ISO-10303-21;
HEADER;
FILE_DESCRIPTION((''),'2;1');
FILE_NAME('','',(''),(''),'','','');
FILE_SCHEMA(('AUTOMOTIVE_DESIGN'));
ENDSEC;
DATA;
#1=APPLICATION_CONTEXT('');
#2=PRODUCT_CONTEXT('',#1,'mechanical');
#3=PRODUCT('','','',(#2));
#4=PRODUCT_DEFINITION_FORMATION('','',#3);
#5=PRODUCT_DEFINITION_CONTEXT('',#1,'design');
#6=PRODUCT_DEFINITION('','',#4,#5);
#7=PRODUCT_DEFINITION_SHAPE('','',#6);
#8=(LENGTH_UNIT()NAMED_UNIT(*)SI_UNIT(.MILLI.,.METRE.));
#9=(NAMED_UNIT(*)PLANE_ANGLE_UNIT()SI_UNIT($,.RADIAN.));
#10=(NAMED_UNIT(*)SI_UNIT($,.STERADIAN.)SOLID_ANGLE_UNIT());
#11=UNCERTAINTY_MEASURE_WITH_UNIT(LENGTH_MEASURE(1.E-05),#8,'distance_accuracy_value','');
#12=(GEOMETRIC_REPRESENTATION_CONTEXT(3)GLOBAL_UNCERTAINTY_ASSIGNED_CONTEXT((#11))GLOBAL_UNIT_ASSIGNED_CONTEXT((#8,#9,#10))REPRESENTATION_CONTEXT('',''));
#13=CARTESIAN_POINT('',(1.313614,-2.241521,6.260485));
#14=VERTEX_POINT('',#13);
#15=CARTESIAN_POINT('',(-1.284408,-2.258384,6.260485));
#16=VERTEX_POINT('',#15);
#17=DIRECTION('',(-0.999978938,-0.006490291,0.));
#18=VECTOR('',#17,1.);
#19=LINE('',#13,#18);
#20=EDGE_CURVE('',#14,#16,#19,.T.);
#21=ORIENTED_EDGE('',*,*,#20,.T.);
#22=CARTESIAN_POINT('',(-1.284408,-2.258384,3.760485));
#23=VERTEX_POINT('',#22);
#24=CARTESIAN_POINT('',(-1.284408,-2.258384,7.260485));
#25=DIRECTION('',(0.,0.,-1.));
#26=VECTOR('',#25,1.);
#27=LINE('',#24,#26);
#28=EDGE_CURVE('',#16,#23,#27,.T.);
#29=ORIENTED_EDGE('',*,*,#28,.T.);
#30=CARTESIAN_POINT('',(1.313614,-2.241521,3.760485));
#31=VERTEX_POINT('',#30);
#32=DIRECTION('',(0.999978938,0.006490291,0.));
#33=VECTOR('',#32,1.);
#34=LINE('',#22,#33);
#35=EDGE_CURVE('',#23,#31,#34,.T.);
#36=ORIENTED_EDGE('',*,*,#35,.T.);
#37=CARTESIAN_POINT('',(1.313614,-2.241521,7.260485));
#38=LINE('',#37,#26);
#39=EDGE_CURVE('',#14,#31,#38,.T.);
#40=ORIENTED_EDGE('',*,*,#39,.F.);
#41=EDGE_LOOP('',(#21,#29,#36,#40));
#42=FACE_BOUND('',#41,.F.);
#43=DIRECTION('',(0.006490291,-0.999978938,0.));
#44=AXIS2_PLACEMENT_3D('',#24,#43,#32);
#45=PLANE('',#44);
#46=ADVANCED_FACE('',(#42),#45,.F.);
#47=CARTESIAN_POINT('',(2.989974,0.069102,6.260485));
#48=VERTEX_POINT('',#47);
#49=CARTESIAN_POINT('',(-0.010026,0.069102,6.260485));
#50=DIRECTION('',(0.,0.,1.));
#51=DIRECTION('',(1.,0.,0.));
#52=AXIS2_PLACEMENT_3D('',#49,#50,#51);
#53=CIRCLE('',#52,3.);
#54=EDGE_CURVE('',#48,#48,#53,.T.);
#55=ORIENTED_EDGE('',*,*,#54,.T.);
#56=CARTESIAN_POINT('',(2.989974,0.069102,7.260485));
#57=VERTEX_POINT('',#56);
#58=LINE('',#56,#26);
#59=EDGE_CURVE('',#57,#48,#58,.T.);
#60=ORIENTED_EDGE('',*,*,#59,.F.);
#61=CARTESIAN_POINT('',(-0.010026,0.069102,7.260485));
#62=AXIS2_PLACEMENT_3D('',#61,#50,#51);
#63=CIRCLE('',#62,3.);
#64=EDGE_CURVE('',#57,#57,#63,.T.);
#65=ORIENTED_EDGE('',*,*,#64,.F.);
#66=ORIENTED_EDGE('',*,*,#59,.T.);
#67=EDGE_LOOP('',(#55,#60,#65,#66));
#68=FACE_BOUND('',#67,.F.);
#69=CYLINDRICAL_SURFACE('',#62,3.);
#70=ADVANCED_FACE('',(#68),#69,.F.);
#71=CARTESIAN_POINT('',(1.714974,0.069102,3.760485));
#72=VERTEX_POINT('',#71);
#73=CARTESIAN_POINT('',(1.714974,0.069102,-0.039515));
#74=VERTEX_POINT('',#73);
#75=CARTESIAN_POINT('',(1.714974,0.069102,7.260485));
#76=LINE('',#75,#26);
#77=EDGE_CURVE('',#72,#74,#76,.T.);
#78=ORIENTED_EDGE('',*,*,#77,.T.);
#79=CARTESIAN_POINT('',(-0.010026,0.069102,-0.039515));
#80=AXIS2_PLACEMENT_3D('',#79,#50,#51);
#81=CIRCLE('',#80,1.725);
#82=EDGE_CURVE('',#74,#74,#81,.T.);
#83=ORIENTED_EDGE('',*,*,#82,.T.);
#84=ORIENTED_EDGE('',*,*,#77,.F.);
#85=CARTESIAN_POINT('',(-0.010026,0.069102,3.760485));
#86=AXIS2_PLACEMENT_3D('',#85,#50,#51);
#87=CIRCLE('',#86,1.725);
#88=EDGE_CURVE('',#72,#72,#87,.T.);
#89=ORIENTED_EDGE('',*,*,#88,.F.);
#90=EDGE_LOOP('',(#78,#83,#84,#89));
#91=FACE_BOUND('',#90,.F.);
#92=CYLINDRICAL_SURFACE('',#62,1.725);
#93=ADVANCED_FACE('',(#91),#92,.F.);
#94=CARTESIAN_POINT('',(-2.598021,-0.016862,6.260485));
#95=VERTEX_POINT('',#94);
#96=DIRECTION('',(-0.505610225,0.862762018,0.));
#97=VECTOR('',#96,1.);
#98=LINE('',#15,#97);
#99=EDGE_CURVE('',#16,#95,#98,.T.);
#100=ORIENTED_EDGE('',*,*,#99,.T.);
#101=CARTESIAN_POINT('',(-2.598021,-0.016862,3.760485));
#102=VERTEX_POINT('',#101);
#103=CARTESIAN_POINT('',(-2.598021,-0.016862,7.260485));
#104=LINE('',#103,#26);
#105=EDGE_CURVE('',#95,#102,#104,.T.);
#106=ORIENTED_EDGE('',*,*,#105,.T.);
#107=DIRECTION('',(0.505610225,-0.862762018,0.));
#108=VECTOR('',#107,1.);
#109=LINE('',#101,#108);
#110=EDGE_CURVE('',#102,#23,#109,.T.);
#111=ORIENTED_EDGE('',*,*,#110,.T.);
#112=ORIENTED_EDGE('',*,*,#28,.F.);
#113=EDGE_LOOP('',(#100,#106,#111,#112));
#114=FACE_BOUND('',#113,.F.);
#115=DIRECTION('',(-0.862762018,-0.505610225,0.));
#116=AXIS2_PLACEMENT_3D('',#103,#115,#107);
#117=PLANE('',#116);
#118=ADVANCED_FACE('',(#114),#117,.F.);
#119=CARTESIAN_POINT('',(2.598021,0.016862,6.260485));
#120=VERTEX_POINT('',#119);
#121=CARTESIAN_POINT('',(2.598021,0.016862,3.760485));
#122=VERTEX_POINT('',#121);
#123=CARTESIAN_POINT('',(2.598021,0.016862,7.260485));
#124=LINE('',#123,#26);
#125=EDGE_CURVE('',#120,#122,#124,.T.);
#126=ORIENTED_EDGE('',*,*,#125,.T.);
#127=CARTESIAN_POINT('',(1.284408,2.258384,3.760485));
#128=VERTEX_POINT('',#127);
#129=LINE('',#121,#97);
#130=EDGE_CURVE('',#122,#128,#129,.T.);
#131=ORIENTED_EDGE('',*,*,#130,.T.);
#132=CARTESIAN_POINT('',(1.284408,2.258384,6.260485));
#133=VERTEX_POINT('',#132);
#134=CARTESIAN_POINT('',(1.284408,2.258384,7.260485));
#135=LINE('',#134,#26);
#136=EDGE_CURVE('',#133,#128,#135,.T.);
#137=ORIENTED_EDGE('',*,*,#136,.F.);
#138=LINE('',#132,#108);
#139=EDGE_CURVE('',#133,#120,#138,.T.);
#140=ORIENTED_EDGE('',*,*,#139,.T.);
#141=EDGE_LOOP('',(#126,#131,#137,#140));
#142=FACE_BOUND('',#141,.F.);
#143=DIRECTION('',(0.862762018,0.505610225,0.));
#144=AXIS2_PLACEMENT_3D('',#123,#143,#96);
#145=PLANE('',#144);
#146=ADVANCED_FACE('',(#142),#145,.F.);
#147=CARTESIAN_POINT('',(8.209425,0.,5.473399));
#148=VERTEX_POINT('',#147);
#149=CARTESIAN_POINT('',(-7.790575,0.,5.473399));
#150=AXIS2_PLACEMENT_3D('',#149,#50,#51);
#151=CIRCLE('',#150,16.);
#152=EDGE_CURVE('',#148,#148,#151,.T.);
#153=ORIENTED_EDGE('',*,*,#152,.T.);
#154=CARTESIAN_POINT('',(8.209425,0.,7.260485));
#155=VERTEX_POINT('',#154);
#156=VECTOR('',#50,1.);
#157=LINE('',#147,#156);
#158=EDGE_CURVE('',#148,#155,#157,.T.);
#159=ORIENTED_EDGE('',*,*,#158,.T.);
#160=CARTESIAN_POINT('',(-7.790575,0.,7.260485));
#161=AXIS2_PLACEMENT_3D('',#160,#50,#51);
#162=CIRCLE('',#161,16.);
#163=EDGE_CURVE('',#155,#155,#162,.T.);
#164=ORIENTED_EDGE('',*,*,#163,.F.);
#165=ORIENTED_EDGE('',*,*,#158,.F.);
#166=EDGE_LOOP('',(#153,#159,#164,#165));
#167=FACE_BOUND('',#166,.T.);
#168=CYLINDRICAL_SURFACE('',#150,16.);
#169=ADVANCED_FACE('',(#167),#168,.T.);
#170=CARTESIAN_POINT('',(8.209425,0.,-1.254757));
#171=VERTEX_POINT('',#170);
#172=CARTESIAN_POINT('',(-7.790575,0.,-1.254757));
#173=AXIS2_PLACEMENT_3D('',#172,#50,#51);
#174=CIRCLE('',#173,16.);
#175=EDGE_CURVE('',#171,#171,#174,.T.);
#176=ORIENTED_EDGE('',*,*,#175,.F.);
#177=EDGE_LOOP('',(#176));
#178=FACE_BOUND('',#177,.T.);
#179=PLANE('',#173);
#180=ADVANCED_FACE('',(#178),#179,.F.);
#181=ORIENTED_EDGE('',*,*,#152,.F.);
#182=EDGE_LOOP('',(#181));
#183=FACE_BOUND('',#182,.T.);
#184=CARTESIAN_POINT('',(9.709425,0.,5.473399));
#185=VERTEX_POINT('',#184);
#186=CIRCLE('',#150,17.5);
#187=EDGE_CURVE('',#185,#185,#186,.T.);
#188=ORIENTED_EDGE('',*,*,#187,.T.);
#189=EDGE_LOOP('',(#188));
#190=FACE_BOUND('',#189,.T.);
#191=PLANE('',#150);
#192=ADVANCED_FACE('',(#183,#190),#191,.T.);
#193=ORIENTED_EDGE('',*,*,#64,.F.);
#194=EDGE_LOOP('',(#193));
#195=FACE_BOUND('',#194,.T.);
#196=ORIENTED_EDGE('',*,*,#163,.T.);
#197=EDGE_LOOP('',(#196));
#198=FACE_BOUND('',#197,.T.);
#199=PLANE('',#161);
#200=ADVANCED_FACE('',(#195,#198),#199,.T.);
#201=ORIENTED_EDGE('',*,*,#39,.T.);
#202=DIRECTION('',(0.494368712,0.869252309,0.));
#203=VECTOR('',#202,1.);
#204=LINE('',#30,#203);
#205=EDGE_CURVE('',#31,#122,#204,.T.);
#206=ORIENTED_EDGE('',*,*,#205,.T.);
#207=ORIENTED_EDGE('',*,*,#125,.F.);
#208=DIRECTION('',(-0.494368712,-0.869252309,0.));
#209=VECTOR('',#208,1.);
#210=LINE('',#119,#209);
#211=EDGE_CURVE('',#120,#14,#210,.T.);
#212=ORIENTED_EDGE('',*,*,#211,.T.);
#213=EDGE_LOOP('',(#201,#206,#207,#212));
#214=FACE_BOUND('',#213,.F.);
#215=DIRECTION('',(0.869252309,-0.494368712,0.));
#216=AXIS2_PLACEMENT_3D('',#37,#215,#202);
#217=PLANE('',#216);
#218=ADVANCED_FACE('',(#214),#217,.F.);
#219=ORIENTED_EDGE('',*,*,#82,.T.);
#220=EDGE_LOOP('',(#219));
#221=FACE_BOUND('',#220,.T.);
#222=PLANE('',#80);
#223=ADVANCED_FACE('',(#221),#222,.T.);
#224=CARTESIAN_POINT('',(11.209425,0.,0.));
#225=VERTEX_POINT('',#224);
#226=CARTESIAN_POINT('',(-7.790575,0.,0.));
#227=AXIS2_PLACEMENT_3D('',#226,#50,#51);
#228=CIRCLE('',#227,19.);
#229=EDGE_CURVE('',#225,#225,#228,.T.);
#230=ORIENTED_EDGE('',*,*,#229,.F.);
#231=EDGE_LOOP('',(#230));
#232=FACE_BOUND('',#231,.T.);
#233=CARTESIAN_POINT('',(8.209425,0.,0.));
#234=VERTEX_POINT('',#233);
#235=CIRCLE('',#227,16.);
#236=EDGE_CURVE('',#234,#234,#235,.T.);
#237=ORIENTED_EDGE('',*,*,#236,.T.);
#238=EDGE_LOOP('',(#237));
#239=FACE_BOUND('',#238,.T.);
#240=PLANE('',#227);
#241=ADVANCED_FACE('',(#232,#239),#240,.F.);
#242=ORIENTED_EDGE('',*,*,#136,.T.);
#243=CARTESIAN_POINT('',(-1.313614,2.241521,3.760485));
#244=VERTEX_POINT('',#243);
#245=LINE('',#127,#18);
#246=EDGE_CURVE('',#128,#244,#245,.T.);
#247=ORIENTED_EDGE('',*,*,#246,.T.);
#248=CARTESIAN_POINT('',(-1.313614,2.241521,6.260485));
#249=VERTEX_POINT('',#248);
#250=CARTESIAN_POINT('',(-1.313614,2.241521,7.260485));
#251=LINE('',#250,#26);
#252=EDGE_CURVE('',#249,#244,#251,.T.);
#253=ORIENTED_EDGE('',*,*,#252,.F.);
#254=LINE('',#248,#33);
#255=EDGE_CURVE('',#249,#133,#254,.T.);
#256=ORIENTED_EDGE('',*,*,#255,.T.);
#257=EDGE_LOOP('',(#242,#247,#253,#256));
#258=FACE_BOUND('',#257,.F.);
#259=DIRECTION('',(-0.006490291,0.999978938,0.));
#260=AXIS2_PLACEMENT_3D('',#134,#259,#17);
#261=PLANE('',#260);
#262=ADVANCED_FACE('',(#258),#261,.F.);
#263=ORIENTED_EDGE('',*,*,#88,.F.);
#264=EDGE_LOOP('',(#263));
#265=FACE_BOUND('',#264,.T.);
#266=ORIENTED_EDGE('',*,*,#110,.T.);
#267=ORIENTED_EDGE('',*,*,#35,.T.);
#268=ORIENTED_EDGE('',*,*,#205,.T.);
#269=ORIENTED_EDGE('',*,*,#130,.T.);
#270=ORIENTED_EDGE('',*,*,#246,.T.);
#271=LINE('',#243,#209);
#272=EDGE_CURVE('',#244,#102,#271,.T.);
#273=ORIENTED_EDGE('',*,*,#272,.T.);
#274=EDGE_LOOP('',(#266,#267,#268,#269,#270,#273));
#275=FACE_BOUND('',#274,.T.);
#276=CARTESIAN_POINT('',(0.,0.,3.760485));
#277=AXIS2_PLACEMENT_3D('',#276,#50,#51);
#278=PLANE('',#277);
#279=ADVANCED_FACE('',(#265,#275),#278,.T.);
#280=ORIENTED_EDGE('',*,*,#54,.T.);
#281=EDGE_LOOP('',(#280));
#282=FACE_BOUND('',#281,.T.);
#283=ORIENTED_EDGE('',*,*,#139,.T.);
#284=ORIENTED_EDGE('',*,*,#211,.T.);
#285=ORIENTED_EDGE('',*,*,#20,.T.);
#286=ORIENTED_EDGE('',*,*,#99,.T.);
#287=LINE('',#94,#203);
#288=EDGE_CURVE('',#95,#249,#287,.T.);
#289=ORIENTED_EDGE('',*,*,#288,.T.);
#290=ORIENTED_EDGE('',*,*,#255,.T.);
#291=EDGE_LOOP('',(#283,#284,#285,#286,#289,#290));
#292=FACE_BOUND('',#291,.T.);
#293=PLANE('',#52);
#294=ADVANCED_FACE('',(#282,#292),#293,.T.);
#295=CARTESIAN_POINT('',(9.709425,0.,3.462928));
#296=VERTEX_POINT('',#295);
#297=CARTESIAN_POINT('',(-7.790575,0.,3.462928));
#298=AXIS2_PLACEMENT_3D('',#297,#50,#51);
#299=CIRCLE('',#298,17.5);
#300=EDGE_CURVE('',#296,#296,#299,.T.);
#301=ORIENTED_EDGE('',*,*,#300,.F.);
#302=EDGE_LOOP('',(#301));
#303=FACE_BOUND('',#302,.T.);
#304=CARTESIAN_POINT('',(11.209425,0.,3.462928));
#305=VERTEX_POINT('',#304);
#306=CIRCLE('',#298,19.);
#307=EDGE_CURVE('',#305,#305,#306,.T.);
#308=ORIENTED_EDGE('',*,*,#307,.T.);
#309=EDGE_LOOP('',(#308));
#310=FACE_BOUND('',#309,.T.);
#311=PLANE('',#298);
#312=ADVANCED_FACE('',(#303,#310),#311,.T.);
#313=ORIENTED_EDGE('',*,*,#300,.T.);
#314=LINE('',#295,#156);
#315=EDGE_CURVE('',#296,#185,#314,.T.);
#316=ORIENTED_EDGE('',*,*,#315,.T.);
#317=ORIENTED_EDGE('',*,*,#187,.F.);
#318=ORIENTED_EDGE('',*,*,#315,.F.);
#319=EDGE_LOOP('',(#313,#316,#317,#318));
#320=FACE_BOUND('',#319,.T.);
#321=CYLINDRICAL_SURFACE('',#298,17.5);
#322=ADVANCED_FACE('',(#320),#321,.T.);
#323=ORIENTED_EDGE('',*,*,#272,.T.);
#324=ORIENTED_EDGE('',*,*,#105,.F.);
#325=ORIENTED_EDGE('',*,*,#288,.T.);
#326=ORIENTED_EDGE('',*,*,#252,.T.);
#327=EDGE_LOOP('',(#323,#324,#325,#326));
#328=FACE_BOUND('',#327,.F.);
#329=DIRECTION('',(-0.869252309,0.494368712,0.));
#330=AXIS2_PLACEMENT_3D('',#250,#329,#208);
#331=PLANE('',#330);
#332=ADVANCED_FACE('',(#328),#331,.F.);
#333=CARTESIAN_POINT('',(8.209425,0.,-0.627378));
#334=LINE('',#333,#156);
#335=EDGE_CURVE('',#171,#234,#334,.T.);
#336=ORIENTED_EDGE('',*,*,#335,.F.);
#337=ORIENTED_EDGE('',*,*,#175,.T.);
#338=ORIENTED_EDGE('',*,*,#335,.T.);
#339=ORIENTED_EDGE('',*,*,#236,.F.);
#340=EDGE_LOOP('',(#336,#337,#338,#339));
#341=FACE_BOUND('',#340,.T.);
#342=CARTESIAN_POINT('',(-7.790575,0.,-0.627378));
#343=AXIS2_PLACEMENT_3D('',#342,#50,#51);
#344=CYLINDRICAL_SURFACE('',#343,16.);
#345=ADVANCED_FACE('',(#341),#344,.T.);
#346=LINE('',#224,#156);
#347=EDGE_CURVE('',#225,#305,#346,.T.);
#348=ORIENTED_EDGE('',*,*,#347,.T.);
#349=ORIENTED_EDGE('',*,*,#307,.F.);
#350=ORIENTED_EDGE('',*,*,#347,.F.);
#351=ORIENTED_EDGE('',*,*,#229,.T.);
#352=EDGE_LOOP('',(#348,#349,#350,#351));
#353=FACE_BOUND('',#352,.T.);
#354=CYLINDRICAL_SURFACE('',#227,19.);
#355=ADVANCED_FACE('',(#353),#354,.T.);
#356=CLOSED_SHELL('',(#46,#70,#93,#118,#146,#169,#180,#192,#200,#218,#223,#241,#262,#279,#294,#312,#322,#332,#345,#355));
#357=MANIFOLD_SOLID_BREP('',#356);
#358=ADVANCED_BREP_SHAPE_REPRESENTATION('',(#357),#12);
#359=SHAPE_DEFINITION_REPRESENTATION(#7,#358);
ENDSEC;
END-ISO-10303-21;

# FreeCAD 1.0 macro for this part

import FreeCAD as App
import Part
import Sketcher
from FreeCAD import Vector
Q = App.Units.Quantity


def add_polygon(sketch, points):
    """Adds a closed chain of lines whose ends are joined by coincident constraints."""
    first, n = sketch.GeometryCount, len(points)
    for a, b in zip(points, points[1:] + points[:1]):
        sketch.addGeometry(Part.LineSegment(App.Vector(*a, 0), App.Vector(*b, 0)), False)
    for i in range(n):
        sketch.addConstraint(Sketcher.Constraint("Coincident", first + i, 2, first + (i + 1) % n, 1))

doc = App.newDocument("Part")
body = doc.addObject("PartDesign::Body", "Body")

sketch1 = body.newObject("Sketcher::SketchObject", "Sketch")
sketch1.AttachmentSupport = (doc.getObject("XZ_Plane"), [""])
sketch1.MapMode = "FlatFace"
add_polygon(sketch1, [(-7.8, 7.3), (-7.8, -1.3), (8.2, -1.3), (8.2, 0), (11.2, 0), (11.2, 3.5), (9.7, 3.5), (9.7, 5.5), (8.2, 5.5), (8.2, 7.3)])
sketch1.addGeometry(Part.LineSegment(Vector(-7.8, -1.3, 0), Vector(-7.8, 7.3, 0)), True)
sketch1.addConstraint([
    Sketcher.Constraint("Vertical", 0),
    Sketcher.Constraint("Horizontal", 1),
    Sketcher.Constraint("Vertical", 2),
    Sketcher.Constraint("Horizontal", 3),
    Sketcher.Constraint("Vertical", 4),
    Sketcher.Constraint("Horizontal", 5),
    Sketcher.Constraint("Vertical", 6),
    Sketcher.Constraint("Horizontal", 7),
    Sketcher.Constraint("Vertical", 8),
    Sketcher.Constraint("Horizontal", 9),
    Sketcher.Constraint("Vertical", 10),
    Sketcher.Constraint("Coincident", 10, 1, 0, 2),
    Sketcher.Constraint("PointOnObject", 2, 2, -1),
    Sketcher.Constraint("Horizontal", 8, 2, 10, 2),
    Sketcher.Constraint("Vertical", 2, 2, 7, 2),
    Sketcher.Constraint("Equal", 5, 7),
    Sketcher.Constraint("DistanceX", 1, 1, 1, 2, Q("16 mm")),
    Sketcher.Constraint("DistanceX", 3, 1, 3, 2, Q("3 mm")),
    Sketcher.Constraint("DistanceY", 0, 2, 0, 1, Q("8.515242 mm")),
    Sketcher.Constraint("DistanceY", 4, 1, 4, 2, Q("3.462928 mm")),
    Sketcher.Constraint("DistanceY", 6, 1, 6, 2, Q("2.010471 mm")),
    Sketcher.Constraint("DistanceY", 2, 1, 2, 2, Q("1.254757 mm")),
    Sketcher.Constraint("DistanceX", 0, 2, -1, 1, Q("7.790575 mm")),
])
revolution = body.newObject("PartDesign::Revolution", "Revolution")
revolution.Profile = sketch1
revolution.ReferenceAxis = (sketch1, ["Axis0"])
revolution.Angle = 360

sketch2 = body.newObject("Sketcher::SketchObject", "Sketch001")
sketch2.AttachmentSupport = (doc.getObject("XY_Plane"), [""])
sketch2.MapMode = "FlatFace"
sketch2.AttachmentOffset = App.Placement(Vector(0, 0, 7.260485), App.Rotation())
sketch2.addGeometry(Part.Circle(Vector(0, 0.1, 0), Vector(0, 0, 1), 1.7), False)
sketch2.addConstraint([
    Sketcher.Constraint("Diameter", 0, Q("3.45 mm")),
    Sketcher.Constraint("DistanceX", 0, 3, -1, 1, Q("0.010026 mm")),
    Sketcher.Constraint("DistanceY", -1, 1, 0, 3, Q("0.069102 mm")),
])
pocket1 = body.newObject("PartDesign::Pocket", "Pocket")
pocket1.Profile = sketch2
pocket1.Length = 7.3

sketch3 = body.newObject("Sketcher::SketchObject", "Sketch002")
sketch3.AttachmentSupport = (doc.getObject("XY_Plane"), [""])
sketch3.MapMode = "FlatFace"
sketch3.AttachmentOffset = App.Placement(Vector(0, 0, 7.260485), App.Rotation())
add_polygon(sketch3, [(-1.3, 2.2), (-2.6, 0), (-1.3, -2.3), (1.3, -2.2), (2.6, 0), (1.3, 2.3)])
sketch3.addGeometry(Part.Circle(Vector(0, 0.1, 0), Vector(0, 0, 1), 1.7), False)
sketch3.addConstraint([
    Sketcher.Constraint("Symmetric", 0, 2, 3, 2, -1, 1),
    Sketcher.Constraint("Symmetric", 1, 2, 4, 2, -1, 1),
    Sketcher.Constraint("Symmetric", 2, 2, 5, 2, -1, 1),
    Sketcher.Constraint("Equal", 0, 1),
    Sketcher.Constraint("Equal", 1, 2),
    Sketcher.Constraint("Diameter", 6, Q("3.45 mm")),
    Sketcher.Constraint("DistanceX", 0, 2, -1, 1, Q("2.598021 mm")),
    Sketcher.Constraint("DistanceY", 2, 2, -1, 1, Q("2.241521 mm")),
    Sketcher.Constraint("DistanceY", 1, 2, 0, 2, Q("2.241521 mm")),
    Sketcher.Constraint("DistanceX", 1, 2, 6, 3, Q("1.274382 mm")),
    Sketcher.Constraint("DistanceX", 1, 2, 2, 2, Q("2.598021 mm")),
    Sketcher.Constraint("DistanceY", 3, 2, 6, 3, Q("0.05224 mm")),
])
pocket2 = body.newObject("PartDesign::Pocket", "Pocket001")
pocket2.Profile = sketch3
pocket2.Length = 3.5

sketch4 = body.newObject("Sketcher::SketchObject", "Sketch003")
sketch4.AttachmentSupport = (doc.getObject("XY_Plane"), [""])
sketch4.MapMode = "FlatFace"
sketch4.AttachmentOffset = App.Placement(Vector(0, 0, 7.260485), App.Rotation())
sketch4.addGeometry(Part.Circle(Vector(0, 0.1, 0), Vector(0, 0, 1), 3), False)
add_polygon(sketch4, [(1.3, -2.2), (-1.3, -2.3), (-2.6, 0), (-1.3, 2.2), (1.3, 2.3), (2.6, 0)])
sketch4.addConstraint([
    Sketcher.Constraint("Symmetric", 1, 2, 4, 2, -1, 1),
    Sketcher.Constraint("Symmetric", 2, 2, 5, 2, -1, 1),
    Sketcher.Constraint("Symmetric", 3, 2, 6, 2, -1, 1),
    Sketcher.Constraint("Equal", 1, 2),
    Sketcher.Constraint("Equal", 2, 3),
    Sketcher.Constraint("Diameter", 0, Q("6 mm")),
    Sketcher.Constraint("DistanceX", 2, 2, -1, 1, Q("2.598021 mm")),
    Sketcher.Constraint("DistanceY", -1, 1, 3, 2, Q("2.241521 mm")),
    Sketcher.Constraint("DistanceX", 1, 2, 0, 3, Q("1.274382 mm")),
    Sketcher.Constraint("DistanceY", 1, 2, 2, 2, Q("2.241521 mm")),
    Sketcher.Constraint("DistanceX", 3, 2, 0, 3, Q("1.303588 mm")),
    Sketcher.Constraint("DistanceY", 0, 3, 3, 2, Q("2.172419 mm")),
])
pocket3 = body.newObject("PartDesign::Pocket", "Pocket002")
pocket3.Profile = sketch4
pocket3.Length = 1

doc.recompute()
